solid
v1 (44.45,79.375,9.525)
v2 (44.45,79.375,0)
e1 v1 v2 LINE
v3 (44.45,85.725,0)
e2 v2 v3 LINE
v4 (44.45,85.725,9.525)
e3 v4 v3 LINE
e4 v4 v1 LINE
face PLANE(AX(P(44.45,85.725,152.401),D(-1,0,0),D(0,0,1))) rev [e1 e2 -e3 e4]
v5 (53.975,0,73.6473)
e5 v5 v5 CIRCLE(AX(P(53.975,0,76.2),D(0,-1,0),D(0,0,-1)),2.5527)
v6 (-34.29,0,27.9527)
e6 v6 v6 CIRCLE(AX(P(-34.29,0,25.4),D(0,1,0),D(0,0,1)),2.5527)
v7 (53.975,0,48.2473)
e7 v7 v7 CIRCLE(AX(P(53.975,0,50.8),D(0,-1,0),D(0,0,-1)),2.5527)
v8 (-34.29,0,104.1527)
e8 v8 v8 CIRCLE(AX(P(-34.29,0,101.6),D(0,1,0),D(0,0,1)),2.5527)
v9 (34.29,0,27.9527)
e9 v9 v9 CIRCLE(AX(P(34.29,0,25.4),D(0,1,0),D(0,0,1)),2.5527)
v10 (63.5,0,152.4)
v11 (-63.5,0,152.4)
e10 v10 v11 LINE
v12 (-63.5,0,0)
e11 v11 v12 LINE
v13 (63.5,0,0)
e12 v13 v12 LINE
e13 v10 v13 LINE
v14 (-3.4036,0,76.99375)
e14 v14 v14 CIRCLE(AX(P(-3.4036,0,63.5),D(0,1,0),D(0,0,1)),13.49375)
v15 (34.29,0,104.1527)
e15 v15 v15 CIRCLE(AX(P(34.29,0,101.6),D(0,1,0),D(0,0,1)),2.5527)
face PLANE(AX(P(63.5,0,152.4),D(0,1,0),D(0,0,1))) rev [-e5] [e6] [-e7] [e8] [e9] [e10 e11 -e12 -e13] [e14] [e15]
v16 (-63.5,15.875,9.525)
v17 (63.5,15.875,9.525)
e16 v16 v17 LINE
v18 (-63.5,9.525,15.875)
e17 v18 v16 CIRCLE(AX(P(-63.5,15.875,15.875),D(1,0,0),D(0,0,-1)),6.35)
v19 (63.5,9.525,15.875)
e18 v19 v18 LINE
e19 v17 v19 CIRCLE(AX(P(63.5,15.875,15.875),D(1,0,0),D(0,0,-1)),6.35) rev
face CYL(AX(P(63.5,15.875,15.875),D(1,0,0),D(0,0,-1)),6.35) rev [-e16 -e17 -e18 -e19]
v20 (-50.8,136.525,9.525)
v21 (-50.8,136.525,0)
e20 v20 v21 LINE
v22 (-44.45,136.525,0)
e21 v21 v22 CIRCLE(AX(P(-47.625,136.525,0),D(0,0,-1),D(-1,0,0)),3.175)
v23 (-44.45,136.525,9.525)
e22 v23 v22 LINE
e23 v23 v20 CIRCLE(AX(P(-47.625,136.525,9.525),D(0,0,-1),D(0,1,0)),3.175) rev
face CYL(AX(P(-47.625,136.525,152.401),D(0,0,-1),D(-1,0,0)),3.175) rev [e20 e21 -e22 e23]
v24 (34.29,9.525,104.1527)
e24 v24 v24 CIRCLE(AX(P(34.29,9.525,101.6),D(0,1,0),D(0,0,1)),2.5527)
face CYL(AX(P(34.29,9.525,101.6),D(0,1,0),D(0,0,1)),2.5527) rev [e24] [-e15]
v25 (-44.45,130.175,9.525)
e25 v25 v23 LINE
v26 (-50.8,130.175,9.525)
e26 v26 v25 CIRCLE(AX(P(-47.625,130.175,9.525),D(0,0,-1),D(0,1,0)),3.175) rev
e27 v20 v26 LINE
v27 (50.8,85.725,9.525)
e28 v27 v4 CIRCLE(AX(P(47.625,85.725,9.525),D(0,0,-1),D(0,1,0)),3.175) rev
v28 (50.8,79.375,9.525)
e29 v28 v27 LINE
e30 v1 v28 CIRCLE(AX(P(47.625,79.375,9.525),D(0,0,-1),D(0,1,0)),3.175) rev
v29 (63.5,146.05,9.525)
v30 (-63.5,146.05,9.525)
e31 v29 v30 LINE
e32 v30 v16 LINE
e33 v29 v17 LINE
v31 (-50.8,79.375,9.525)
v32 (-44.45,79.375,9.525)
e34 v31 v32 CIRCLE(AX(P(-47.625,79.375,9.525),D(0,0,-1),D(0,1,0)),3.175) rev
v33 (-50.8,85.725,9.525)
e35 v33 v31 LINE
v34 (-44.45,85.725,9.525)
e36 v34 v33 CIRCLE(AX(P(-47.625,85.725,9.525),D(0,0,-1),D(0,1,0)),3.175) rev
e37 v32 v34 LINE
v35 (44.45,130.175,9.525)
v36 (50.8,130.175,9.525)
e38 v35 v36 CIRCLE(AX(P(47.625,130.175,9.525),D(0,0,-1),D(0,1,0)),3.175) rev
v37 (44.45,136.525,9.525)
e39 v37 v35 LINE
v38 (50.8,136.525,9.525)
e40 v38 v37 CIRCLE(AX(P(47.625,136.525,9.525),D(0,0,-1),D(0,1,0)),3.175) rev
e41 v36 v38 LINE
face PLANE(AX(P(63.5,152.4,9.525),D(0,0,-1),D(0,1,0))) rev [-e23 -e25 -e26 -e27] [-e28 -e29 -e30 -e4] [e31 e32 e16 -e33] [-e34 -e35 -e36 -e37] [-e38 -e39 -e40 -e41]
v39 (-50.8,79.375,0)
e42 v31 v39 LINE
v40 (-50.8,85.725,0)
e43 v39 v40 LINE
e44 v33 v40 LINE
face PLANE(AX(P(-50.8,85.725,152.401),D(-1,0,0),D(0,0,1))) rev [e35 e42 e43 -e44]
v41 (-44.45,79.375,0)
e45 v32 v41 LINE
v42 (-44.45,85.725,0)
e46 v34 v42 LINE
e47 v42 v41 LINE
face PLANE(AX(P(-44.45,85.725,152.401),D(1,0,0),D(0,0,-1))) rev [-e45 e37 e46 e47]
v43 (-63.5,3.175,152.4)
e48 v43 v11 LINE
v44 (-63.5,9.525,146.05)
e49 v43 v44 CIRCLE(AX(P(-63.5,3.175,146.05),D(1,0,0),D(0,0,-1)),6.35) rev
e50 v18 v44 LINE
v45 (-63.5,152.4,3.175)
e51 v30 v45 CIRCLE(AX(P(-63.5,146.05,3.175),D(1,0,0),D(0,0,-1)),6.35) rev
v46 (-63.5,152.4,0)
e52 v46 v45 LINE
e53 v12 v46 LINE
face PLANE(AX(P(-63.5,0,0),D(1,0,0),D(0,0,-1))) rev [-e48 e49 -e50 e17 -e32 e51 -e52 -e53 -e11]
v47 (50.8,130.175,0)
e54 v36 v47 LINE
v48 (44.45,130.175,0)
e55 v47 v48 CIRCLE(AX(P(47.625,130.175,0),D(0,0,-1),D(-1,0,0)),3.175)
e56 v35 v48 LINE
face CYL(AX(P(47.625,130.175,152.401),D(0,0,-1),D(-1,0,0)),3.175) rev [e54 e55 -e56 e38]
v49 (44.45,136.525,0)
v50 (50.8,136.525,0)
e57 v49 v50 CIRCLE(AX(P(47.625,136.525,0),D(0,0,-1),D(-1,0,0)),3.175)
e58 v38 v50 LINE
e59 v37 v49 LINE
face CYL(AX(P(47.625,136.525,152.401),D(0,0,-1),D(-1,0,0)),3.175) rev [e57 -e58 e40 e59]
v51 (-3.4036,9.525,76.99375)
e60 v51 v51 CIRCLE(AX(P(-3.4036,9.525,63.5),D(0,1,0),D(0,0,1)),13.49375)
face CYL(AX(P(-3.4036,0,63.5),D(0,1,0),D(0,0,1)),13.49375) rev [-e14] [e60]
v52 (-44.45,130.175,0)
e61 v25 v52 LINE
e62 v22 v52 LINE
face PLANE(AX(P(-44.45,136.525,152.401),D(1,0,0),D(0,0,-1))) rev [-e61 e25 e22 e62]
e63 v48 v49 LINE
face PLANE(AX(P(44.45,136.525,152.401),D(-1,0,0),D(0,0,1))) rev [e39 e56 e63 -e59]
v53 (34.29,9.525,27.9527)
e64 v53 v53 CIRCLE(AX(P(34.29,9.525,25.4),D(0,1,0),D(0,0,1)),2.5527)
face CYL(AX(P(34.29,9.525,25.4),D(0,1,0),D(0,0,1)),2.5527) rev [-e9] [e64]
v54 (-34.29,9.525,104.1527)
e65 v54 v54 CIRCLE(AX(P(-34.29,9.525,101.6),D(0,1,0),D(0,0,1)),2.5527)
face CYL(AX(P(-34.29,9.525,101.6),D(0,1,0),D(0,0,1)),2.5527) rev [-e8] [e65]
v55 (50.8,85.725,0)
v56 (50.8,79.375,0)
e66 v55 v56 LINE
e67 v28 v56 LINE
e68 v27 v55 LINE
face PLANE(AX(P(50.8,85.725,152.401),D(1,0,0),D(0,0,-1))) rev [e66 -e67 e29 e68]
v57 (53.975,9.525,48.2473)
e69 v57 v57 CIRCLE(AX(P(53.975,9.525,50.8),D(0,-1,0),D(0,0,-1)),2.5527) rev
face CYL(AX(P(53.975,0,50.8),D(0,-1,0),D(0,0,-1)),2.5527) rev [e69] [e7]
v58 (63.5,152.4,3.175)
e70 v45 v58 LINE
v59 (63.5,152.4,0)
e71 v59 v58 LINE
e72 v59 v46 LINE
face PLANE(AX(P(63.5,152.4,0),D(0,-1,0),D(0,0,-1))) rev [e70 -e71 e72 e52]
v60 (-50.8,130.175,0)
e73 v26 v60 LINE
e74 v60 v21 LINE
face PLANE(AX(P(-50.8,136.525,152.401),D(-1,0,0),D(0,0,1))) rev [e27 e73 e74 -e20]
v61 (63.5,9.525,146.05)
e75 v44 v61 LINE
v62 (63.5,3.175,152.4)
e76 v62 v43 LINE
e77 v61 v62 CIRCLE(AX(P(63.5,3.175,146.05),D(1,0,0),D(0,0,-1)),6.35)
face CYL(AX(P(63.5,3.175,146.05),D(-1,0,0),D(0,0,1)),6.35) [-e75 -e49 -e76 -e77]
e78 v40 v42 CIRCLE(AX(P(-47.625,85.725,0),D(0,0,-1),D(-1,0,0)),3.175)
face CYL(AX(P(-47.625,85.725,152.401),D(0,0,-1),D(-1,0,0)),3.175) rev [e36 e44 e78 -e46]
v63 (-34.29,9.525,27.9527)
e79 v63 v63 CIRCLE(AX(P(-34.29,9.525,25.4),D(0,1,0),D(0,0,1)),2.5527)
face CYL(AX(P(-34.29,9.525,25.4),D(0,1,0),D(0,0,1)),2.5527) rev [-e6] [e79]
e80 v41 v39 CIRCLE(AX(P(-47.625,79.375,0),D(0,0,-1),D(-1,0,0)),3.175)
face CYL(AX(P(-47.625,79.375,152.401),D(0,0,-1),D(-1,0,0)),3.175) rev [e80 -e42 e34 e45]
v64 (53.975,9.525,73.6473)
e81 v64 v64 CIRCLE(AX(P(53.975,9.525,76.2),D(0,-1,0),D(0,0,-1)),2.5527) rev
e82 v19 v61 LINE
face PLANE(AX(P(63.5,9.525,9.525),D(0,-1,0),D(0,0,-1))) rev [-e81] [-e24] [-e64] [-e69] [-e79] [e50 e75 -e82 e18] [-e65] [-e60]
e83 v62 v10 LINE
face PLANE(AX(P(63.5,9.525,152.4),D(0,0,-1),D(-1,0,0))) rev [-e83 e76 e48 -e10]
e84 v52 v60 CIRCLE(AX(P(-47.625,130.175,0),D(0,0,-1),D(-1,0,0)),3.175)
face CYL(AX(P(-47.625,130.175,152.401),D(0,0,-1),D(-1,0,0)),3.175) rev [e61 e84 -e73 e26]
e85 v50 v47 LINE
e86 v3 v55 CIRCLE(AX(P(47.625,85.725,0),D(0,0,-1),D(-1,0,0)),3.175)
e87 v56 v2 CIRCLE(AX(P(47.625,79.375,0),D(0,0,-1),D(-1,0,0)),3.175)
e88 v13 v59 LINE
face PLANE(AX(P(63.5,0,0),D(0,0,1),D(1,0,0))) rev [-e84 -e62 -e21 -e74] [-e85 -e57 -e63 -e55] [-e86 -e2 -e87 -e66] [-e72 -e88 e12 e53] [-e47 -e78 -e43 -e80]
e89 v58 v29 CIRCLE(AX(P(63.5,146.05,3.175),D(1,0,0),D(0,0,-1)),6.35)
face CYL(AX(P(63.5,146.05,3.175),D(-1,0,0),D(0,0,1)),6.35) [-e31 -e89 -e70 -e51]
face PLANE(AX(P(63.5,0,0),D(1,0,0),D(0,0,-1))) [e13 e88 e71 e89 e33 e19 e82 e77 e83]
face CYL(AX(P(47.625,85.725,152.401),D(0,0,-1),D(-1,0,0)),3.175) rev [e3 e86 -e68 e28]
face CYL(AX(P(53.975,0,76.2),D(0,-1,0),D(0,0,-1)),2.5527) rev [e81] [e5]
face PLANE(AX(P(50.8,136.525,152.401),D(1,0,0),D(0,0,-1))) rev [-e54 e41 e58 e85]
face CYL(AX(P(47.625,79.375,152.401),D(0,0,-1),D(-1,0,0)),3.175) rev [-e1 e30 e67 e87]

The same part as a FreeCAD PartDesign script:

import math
import FreeCAD as App
import Part
import Sketcher

V = App.Vector
Q = App.Units.Quantity


def edges_at(feature, points):
    """Names of the edges that pass closest to the given points."""
    edges = feature.Shape.Edges
    near = lambda p: min(range(len(edges)), key=lambda i: edges[i].distToShape(Part.Vertex(*p))[0])
    return sorted({f"Edge{near(p) + 1}" for p in points})


def add_polygon(sketch, points):
    """Adds a closed chain of lines whose ends are joined by coincident constraints."""
    first, n = sketch.GeometryCount, len(points)
    for a, b in zip(points, points[1:] + points[:1]):
        sketch.addGeometry(Part.LineSegment(App.Vector(*a, 0), App.Vector(*b, 0)), False)
    for i in range(n):
        sketch.addConstraint(Sketcher.Constraint("Coincident", first + i, 2, first + (i + 1) % n, 1))

doc = App.newDocument("Part")
body = doc.addObject("PartDesign::Body", "Body")

sketch1 = body.newObject("Sketcher::SketchObject", "Sketch")
sketch1.AttachmentSupport = (doc.getObject("YZ_Plane"), [""])
sketch1.MapMode = "FlatFace"
add_polygon(sketch1, [(0, 0), (152, 0), (152, 10), (10, 10), (10, 152), (0, 152)])
sketch1.addConstraint(Sketcher.Constraint("Horizontal", 0))
sketch1.addConstraint(Sketcher.Constraint("Vertical", 1))
sketch1.addConstraint(Sketcher.Constraint("Horizontal", 2))
sketch1.addConstraint(Sketcher.Constraint("Vertical", 3))
sketch1.addConstraint(Sketcher.Constraint("Horizontal", 4))
sketch1.addConstraint(Sketcher.Constraint("Vertical", 5))
sketch1.addConstraint(Sketcher.Constraint("Coincident", 5, 2, -1, 1))
sketch1.addConstraint(Sketcher.Constraint("Equal", 4, 1))
sketch1.addConstraint(Sketcher.Constraint("Equal", 2, 3))
sketch1.addConstraint(Sketcher.Constraint("DistanceX", 0, 1, 0, 2, Q("6 in")))
sketch1.addConstraint(Sketcher.Constraint("DistanceX", 2, 2, 2, 1, Q("5.625 in")))
pad1 = body.newObject("PartDesign::Pad", "Pad")
pad1.Profile = sketch1
pad1.Length = Q("5 in")
pad1.Midplane = True
doc.recompute()

fillet = body.newObject("PartDesign::Fillet", "Fillet")
fillet.Base = (pad1, edges_at(pad1, [(0, 9.525, 152.4), (0, 9.525, 9.525), (0, 152.4, 9.525)]))
fillet.Radius = Q("0.25 in")

sketch2 = body.newObject("Sketcher::SketchObject", "Sketch001")
sketch2.AttachmentSupport = (doc.getObject("XZ_Plane"), [""])
sketch2.MapMode = "FlatFace"
sketch2.AttachmentOffset = App.Placement(V(0, 0, -0.375 * 25.4), App.Rotation())
sketch2.addGeometry(Part.Circle(V(-34.3, 25.4, 0), V(0, 0, 1), 2.6), False)
sketch2.addGeometry(Part.Circle(V(34.3, 101.6, 0), V(0, 0, 1), 2.6), False)
sketch2.addGeometry(Part.Circle(V(-34.3, 101.6, 0), V(0, 0, 1), 2.6), False)
sketch2.addGeometry(Part.Circle(V(34.3, 25.4, 0), V(0, 0, 1), 2.6), False)
sketch2.addConstraint(Sketcher.Constraint("Equal", 0, 1))
sketch2.addConstraint(Sketcher.Constraint("Equal", 1, 2))
sketch2.addConstraint(Sketcher.Constraint("Equal", 2, 3))
sketch2.addConstraint(Sketcher.Constraint("Symmetric", 1, 3, 2, 3, -2))
sketch2.addConstraint(Sketcher.Constraint("Symmetric", 0, 3, 3, 3, -2))
sketch2.addConstraint(Sketcher.Constraint("Vertical", 0, 3, 2, 3))
sketch2.addConstraint(Sketcher.Constraint("Diameter", 0, Q("0.201 in")))
sketch2.addConstraint(Sketcher.Constraint("DistanceY", -1, 1, 0, 3, Q("1 in")))
sketch2.addConstraint(Sketcher.Constraint("DistanceY", -1, 1, 1, 3, Q("4 in")))
sketch2.addConstraint(Sketcher.Constraint("DistanceX", 0, 3, 1, 3, Q("2.7 in")))
doc.recompute()
hole = body.newObject("PartDesign::Hole", "Hole")
hole.Profile = sketch2
hole.ThreadType = "None"
hole.Diameter = Q("0.201 in")
hole.DepthType = "ThroughAll"
hole.Reversed = True

sketch3 = body.newObject("Sketcher::SketchObject", "Sketch002")
sketch3.AttachmentSupport = (doc.getObject("XZ_Plane"), [""])
sketch3.MapMode = "FlatFace"
sketch3.AttachmentOffset = App.Placement(V(0, 0, -0.375 * 25.4), App.Rotation())
sketch3.addGeometry(Part.Circle(V(-3, 64, 0), V(0, 0, 1), 13), False)
sketch3.addConstraint(Sketcher.Constraint("Diameter", 0, Q("1.0625 in")))
sketch3.addConstraint(Sketcher.Constraint("DistanceY", -1, 1, 0, 3, Q("2.5 in")))
sketch3.addConstraint(Sketcher.Constraint("DistanceX", 0, 3, -1, 1, Q("0.134 in")))
pocket1 = body.newObject("PartDesign::Pocket", "Pocket")
pocket1.Profile = sketch3
pocket1.Type = "ThroughAll"
pocket1.Reversed = True

sketch4 = body.newObject("Sketcher::SketchObject", "Sketch003")
sketch4.AttachmentSupport = (doc.getObject("XZ_Plane"), [""])
sketch4.MapMode = "FlatFace"
sketch4.addGeometry(Part.Circle(V(54, 50.8, 0), V(0, 0, 1), 2.6), False)
sketch4.addGeometry(Part.Circle(V(54, 76.2, 0), V(0, 0, 1), 2.6), False)
sketch4.addConstraint(Sketcher.Constraint("Equal", 0, 1))
sketch4.addConstraint(Sketcher.Constraint("Vertical", 0, 3, 1, 3))
sketch4.addConstraint(Sketcher.Constraint("Diameter", 0, Q("0.201 in")))
sketch4.addConstraint(Sketcher.Constraint("DistanceY", -1, 1, 0, 3, Q("2 in")))
sketch4.addConstraint(Sketcher.Constraint("DistanceY", -1, 1, 1, 3, Q("3 in")))
sketch4.addConstraint(Sketcher.Constraint("DistanceX", -1, 1, 0, 3, Q("2.125 in")))
doc.recompute()
hole2 = body.newObject("PartDesign::Hole", "Hole001")
hole2.Profile = sketch4
hole2.ThreadType = "None"
hole2.Diameter = Q("0.201 in")
hole2.DepthType = "ThroughAll"

sketch5 = body.newObject("Sketcher::SketchObject", "Sketch004")
sketch5.AttachmentSupport = (doc.getObject("XY_Plane"), [""])
sketch5.MapMode = "FlatFace"
sketch5.addGeometry(Part.LineSegment(V(44.5, 130.2, 0), V(44.5, 136.5, 0)), False)
sketch5.addGeometry(Part.ArcOfCircle(Part.Circle(V(47.6, 136.5, 0), V(0, 0, 1), 3.2), math.radians(0), math.radians(180)), False)
sketch5.addGeometry(Part.LineSegment(V(50.8, 136.5, 0), V(50.8, 130.2, 0)), False)
sketch5.addGeometry(Part.ArcOfCircle(Part.Circle(V(47.6, 130.2, 0), V(0, 0, 1), 3.2), math.radians(180), math.radians(360)), False)
sketch5.addConstraint(Sketcher.Constraint("Tangent", 0, 2, 1, 2))
sketch5.addConstraint(Sketcher.Constraint("Tangent", 1, 1, 2, 1))
sketch5.addConstraint(Sketcher.Constraint("Tangent", 2, 2, 3, 2))
sketch5.addConstraint(Sketcher.Constraint("Tangent", 3, 1, 0, 1))
sketch5.addConstraint(Sketcher.Constraint("Vertical", 0))
sketch5.addConstraint(Sketcher.Constraint("Vertical", 2))
sketch5.addConstraint(Sketcher.Constraint("DistanceX", -1, 1, 1, 1, Q("2 in")))
sketch5.addConstraint(Sketcher.Constraint("Radius", 1, Q("0.125 in")))
sketch5.addConstraint(Sketcher.Constraint("DistanceY", 0, 1, 0, 2, Q("0.25 in")))
sketch5.addConstraint(Sketcher.Constraint("DistanceY", -1, 1, 1, 3, Q("5.375 in")))
pocket2 = body.newObject("PartDesign::Pocket", "Pocket001")
pocket2.Profile = sketch5
pocket2.Type = "UpToFirst"
pocket2.Reversed = True

sketch6 = body.newObject("Sketcher::SketchObject", "Sketch005")
sketch6.AttachmentSupport = (doc.getObject("XY_Plane"), [""])
sketch6.MapMode = "FlatFace"
sketch6.addGeometry(Part.LineSegment(V(44.5, 79.4, 0), V(44.5, 85.7, 0)), False)
sketch6.addGeometry(Part.ArcOfCircle(Part.Circle(V(47.6, 85.7, 0), V(0, 0, 1), 3.2), math.radians(0), math.radians(180)), False)
sketch6.addGeometry(Part.LineSegment(V(50.8, 85.7, 0), V(50.8, 79.4, 0)), False)
sketch6.addGeometry(Part.ArcOfCircle(Part.Circle(V(47.6, 79.4, 0), V(0, 0, 1), 3.2), math.radians(180), math.radians(360)), False)
sketch6.addConstraint(Sketcher.Constraint("Tangent", 0, 2, 1, 2))
sketch6.addConstraint(Sketcher.Constraint("Tangent", 1, 1, 2, 1))
sketch6.addConstraint(Sketcher.Constraint("Tangent", 2, 2, 3, 2))
sketch6.addConstraint(Sketcher.Constraint("Tangent", 3, 1, 0, 1))
sketch6.addConstraint(Sketcher.Constraint("Vertical", 0))
sketch6.addConstraint(Sketcher.Constraint("Vertical", 2))
sketch6.addConstraint(Sketcher.Constraint("DistanceX", -1, 1, 1, 1, Q("2 in")))
sketch6.addConstraint(Sketcher.Constraint("Radius", 1, Q("0.125 in")))
sketch6.addConstraint(Sketcher.Constraint("DistanceY", 0, 1, 0, 2, Q("0.25 in")))
sketch6.addConstraint(Sketcher.Constraint("DistanceY", -1, 1, 1, 3, Q("3.375 in")))
pocket3 = body.newObject("PartDesign::Pocket", "Pocket002")
pocket3.Profile = sketch6
pocket3.Type = "UpToFirst"
pocket3.Reversed = True

sketch7 = body.newObject("Sketcher::SketchObject", "Sketch006")
sketch7.AttachmentSupport = (doc.getObject("XY_Plane"), [""])
sketch7.MapMode = "FlatFace"
sketch7.addGeometry(Part.LineSegment(V(-50.8, 79.4, 0), V(-50.8, 85.7, 0)), False)
sketch7.addGeometry(Part.ArcOfCircle(Part.Circle(V(-47.6, 85.7, 0), V(0, 0, 1), 3.2), math.radians(0), math.radians(180)), False)
sketch7.addGeometry(Part.LineSegment(V(-44.5, 85.7, 0), V(-44.5, 79.4, 0)), False)
sketch7.addGeometry(Part.ArcOfCircle(Part.Circle(V(-47.6, 79.4, 0), V(0, 0, 1), 3.2), math.radians(180), math.radians(360)), False)
sketch7.addConstraint(Sketcher.Constraint("Tangent", 0, 2, 1, 2))
sketch7.addConstraint(Sketcher.Constraint("Tangent", 1, 1, 2, 1))
sketch7.addConstraint(Sketcher.Constraint("Tangent", 2, 2, 3, 2))
sketch7.addConstraint(Sketcher.Constraint("Tangent", 3, 1, 0, 1))
sketch7.addConstraint(Sketcher.Constraint("Vertical", 0))
sketch7.addConstraint(Sketcher.Constraint("Vertical", 2))
sketch7.addConstraint(Sketcher.Constraint("DistanceX", 0, 2, -1, 1, Q("2 in")))
sketch7.addConstraint(Sketcher.Constraint("Radius", 1, Q("0.125 in")))
sketch7.addConstraint(Sketcher.Constraint("DistanceY", 0, 1, 0, 2, Q("0.25 in")))
sketch7.addConstraint(Sketcher.Constraint("DistanceY", -1, 1, 1, 3, Q("3.375 in")))
pocket4 = body.newObject("PartDesign::Pocket", "Pocket003")
pocket4.Profile = sketch7
pocket4.Type = "UpToFirst"
pocket4.Reversed = True

sketch8 = body.newObject("Sketcher::SketchObject", "Sketch007")
sketch8.AttachmentSupport = (doc.getObject("XY_Plane"), [""])
sketch8.MapMode = "FlatFace"
sketch8.addGeometry(Part.LineSegment(V(-50.8, 130.2, 0), V(-50.8, 136.5, 0)), False)
sketch8.addGeometry(Part.ArcOfCircle(Part.Circle(V(-47.6, 136.5, 0), V(0, 0, 1), 3.2), math.radians(0), math.radians(180)), False)
sketch8.addGeometry(Part.LineSegment(V(-44.5, 136.5, 0), V(-44.5, 130.2, 0)), False)
sketch8.addGeometry(Part.ArcOfCircle(Part.Circle(V(-47.6, 130.2, 0), V(0, 0, 1), 3.2), math.radians(180), math.radians(360)), False)
sketch8.addConstraint(Sketcher.Constraint("Tangent", 0, 2, 1, 2))
sketch8.addConstraint(Sketcher.Constraint("Tangent", 1, 1, 2, 1))
sketch8.addConstraint(Sketcher.Constraint("Tangent", 2, 2, 3, 2))
sketch8.addConstraint(Sketcher.Constraint("Tangent", 3, 1, 0, 1))
sketch8.addConstraint(Sketcher.Constraint("Vertical", 0))
sketch8.addConstraint(Sketcher.Constraint("Vertical", 2))
sketch8.addConstraint(Sketcher.Constraint("DistanceX", 0, 2, -1, 1, Q("2 in")))
sketch8.addConstraint(Sketcher.Constraint("Radius", 1, Q("0.125 in")))
sketch8.addConstraint(Sketcher.Constraint("DistanceY", 0, 1, 0, 2, Q("0.25 in")))
sketch8.addConstraint(Sketcher.Constraint("DistanceY", -1, 1, 1, 3, Q("5.375 in")))
pocket5 = body.newObject("PartDesign::Pocket", "Pocket004")
pocket5.Profile = sketch8
pocket5.Type = "UpToFirst"
pocket5.Reversed = True

doc.recompute()
